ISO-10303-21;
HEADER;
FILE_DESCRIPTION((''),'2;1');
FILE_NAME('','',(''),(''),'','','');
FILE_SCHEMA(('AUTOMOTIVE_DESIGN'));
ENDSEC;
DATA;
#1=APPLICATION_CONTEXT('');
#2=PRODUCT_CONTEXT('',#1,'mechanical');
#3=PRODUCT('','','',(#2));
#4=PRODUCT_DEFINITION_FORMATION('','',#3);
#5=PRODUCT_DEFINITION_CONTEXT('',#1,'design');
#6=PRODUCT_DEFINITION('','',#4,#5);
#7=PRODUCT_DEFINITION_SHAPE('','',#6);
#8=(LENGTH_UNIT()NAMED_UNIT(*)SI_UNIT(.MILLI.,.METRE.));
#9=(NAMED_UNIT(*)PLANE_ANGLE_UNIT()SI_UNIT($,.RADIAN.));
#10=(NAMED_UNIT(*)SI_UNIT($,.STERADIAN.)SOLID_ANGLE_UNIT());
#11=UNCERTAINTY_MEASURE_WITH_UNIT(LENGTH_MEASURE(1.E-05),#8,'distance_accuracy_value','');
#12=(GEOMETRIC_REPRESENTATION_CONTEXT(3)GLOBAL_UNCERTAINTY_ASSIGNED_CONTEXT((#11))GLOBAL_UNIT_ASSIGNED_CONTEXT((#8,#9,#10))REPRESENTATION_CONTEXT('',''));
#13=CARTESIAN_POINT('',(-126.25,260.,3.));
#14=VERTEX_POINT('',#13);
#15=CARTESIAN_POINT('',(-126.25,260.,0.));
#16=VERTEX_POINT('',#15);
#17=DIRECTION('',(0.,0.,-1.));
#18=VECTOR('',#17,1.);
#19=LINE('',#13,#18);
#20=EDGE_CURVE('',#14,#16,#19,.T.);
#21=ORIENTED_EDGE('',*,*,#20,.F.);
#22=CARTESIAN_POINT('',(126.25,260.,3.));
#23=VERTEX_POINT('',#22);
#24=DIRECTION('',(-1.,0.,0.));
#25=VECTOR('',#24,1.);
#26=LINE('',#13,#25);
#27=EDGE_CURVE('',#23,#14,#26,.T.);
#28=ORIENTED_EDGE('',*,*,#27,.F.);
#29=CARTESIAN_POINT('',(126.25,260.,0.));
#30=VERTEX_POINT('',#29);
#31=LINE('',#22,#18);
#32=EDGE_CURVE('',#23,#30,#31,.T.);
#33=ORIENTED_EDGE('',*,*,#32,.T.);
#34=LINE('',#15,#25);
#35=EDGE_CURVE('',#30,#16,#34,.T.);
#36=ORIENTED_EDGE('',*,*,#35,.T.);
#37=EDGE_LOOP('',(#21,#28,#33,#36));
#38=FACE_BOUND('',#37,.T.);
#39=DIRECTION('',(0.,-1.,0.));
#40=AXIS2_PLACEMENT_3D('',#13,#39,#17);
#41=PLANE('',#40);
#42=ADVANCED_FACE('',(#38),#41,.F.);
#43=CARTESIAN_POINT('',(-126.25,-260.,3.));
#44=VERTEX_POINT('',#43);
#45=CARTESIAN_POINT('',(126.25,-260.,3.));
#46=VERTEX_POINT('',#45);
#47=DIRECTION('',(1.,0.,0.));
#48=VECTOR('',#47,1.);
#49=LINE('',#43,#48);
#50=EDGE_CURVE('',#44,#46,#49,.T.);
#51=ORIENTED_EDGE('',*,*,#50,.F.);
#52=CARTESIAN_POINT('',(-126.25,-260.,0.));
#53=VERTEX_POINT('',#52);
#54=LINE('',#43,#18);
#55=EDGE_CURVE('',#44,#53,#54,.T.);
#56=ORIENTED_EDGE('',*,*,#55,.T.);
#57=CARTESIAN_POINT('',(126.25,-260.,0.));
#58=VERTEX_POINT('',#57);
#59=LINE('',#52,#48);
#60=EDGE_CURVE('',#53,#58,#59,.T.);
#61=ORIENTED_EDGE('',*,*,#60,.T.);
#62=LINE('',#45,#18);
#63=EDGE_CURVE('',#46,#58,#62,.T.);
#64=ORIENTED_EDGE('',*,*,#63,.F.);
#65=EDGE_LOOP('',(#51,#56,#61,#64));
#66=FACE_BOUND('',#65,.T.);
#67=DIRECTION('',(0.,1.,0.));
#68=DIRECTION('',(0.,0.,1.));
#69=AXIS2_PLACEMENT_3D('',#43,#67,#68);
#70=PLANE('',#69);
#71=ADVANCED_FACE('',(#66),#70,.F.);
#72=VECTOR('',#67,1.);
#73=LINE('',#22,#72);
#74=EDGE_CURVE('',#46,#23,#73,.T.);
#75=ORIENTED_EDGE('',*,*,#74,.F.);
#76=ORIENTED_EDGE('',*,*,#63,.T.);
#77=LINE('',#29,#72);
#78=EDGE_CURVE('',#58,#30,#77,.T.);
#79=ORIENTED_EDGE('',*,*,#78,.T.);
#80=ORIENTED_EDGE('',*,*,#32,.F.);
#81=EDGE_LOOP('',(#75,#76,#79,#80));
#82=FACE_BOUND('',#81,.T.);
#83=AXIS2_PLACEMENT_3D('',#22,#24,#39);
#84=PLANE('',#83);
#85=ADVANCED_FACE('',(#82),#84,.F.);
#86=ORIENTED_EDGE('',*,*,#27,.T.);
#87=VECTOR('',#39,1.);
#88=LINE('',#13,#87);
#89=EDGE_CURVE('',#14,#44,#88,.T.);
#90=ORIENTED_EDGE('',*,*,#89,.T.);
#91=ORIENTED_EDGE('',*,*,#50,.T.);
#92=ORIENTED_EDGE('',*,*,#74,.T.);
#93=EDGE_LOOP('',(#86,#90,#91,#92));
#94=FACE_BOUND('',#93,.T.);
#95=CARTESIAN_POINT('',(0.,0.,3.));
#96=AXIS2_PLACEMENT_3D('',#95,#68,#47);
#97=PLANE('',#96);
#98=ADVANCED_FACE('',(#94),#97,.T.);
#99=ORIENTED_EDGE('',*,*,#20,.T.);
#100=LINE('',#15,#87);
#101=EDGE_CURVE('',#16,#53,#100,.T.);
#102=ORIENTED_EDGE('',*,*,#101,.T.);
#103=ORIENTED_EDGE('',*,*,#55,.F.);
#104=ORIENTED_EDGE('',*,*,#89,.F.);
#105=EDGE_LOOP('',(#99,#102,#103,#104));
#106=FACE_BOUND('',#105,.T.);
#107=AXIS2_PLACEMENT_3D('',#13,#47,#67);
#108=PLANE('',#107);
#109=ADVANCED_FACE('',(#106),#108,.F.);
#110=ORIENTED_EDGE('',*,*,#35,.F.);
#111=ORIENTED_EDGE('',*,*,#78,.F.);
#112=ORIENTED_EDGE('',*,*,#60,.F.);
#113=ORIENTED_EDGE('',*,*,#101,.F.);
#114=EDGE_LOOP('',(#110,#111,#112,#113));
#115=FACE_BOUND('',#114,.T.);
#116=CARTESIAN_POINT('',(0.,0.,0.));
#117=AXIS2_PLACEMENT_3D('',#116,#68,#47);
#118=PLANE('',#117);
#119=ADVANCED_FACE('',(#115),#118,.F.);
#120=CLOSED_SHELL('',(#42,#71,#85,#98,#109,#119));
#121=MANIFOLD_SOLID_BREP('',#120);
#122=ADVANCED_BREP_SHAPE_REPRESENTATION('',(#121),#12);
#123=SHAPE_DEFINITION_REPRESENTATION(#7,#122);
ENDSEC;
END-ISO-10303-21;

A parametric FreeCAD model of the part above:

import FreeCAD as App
import Part
import Sketcher
from FreeCAD import Vector
Q = App.Units.Quantity


def add_polygon(sketch, points):
    """Adds a closed chain of lines whose ends are joined by coincident constraints."""
    first, n = sketch.GeometryCount, len(points)
    for a, b in zip(points, points[1:] + points[:1]):
        sketch.addGeometry(Part.LineSegment(App.Vector(*a, 0), App.Vector(*b, 0)), False)
    for i in range(n):
        sketch.addConstraint(Sketcher.Constraint("Coincident", first + i, 2, first + (i + 1) % n, 1))

doc = App.newDocument("Part")
body = doc.addObject("PartDesign::Body", "Body")

# Sketch on XY plane
sketch1 = body.newObject("Sketcher::SketchObject", "Sketch")
sketch1.AttachmentSupport = (doc.getObject("XY_Plane"), [""])
sketch1.MapMode = "FlatFace"
add_polygon(sketch1, [(-126, 260), (-126, -260), (126, -260), (126, 260)])  # lines 0-3
sketch1.addConstraint(Sketcher.Constraint("Vertical", 0))
sketch1.addConstraint(Sketcher.Constraint("Horizontal", 1))
sketch1.addConstraint(Sketcher.Constraint("Vertical", 2))
sketch1.addConstraint(Sketcher.Constraint("Horizontal", 3))
sketch1.addConstraint(Sketcher.Constraint("Symmetric", 0, 2, 2, 2, -1, 1))
sketch1.addConstraint(Sketcher.Constraint("DistanceY", 0, 2, 0, 1, Q("520 mm")))
sketch1.addConstraint(Sketcher.Constraint("DistanceX", 1, 1, 1, 2, Q("252.5 mm")))
pad1 = body.newObject("PartDesign::Pad", "Pad")
pad1.Profile = sketch1
pad1.Length = 3

doc.recompute()
